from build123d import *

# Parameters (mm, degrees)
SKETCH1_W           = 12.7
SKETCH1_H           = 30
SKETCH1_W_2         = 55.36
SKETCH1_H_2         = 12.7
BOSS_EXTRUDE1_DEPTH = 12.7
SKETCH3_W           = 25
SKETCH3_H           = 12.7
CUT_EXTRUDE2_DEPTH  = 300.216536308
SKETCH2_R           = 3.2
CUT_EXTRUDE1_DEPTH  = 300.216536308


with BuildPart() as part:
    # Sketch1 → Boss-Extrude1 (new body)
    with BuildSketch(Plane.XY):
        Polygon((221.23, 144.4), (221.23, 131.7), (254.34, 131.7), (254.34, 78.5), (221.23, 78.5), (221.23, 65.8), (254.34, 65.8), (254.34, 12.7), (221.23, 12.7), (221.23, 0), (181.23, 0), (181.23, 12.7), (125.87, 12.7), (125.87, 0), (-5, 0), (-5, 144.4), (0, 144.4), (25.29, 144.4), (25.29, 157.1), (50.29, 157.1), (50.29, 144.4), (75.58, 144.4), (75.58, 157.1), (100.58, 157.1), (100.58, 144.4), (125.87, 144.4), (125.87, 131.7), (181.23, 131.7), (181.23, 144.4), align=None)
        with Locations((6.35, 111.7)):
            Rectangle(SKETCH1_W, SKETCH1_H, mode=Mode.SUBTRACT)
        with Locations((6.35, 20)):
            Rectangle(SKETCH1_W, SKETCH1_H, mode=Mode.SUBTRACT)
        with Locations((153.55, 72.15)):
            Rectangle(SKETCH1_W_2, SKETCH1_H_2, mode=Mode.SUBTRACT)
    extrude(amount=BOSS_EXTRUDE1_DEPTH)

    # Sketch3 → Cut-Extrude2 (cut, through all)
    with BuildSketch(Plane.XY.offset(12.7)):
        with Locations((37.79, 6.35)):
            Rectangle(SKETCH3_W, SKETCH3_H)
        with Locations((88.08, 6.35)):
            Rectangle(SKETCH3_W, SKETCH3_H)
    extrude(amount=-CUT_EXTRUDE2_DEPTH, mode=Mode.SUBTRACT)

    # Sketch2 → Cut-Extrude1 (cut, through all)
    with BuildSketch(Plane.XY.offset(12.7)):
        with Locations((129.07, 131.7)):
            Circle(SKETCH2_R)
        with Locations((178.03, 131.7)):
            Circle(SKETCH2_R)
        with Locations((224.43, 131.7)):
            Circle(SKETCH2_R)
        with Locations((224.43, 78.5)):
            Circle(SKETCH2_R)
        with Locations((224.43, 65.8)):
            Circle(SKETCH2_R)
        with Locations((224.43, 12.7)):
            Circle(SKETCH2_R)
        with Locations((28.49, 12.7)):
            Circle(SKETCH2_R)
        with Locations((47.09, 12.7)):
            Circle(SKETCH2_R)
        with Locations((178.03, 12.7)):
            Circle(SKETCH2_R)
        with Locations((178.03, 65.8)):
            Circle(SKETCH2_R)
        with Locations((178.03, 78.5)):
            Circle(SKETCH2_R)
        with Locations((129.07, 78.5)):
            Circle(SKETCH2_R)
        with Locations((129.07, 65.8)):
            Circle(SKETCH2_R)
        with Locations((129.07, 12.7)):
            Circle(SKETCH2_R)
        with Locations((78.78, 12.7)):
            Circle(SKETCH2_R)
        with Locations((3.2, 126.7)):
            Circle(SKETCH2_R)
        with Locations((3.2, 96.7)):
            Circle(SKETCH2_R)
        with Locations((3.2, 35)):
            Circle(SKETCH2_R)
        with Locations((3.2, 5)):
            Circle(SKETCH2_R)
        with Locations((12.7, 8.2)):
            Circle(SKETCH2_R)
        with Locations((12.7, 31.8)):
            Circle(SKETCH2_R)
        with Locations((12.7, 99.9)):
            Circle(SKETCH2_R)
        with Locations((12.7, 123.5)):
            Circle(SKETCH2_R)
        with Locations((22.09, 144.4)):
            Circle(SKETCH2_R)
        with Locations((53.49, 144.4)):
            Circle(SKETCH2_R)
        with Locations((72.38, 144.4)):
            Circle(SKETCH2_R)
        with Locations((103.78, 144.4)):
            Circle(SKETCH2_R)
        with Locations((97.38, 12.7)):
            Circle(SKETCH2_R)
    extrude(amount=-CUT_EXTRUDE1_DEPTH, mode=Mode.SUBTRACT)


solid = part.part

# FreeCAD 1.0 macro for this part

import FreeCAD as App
import Part
import Sketcher


def add_polygon(sketch, points):
    """Adds a closed chain of lines whose ends are joined by coincident constraints."""
    first, n = sketch.GeometryCount, len(points)
    for a, b in zip(points, points[1:] + points[:1]):
        sketch.addGeometry(Part.LineSegment(App.Vector(*a, 0), App.Vector(*b, 0)), False)
    for i in range(n):
        sketch.addConstraint(Sketcher.Constraint("Coincident", first + i, 2, first + (i + 1) % n, 1))

doc = App.newDocument("Part")
body = doc.addObject("PartDesign::Body", "Body")

sketch1 = doc.addObject("Sketcher::SketchObject", "Sketch")
body.addObject(sketch1)
sketch1.AttachmentSupport = (doc.XY_Plane, [""])
sketch1.MapMode = "FlatFace"
add_polygon(sketch1, [(221, 132), (221, 144), (181, 144), (181, 132), (126, 132), (126, 144), (101, 144), (101, 157), (76, 157), (76, 144), (50, 144), (50, 157), (25, 157), (25, 144), (-5, 144), (-5, 0), (126, 0), (126, 13), (181, 13), (181, 0), (221, 0), (221, 13), (254, 13), (254, 66), (221, 66), (221, 78), (254, 78), (254, 132)])
add_polygon(sketch1, [(0, 5), (0, 35), (13, 35), (13, 5)])
add_polygon(sketch1, [(126, 66), (126, 78), (181, 78), (181, 66)])
add_polygon(sketch1, [(0, 97), (0, 127), (13, 127), (13, 97)])
sketch1.addConstraint([
    Sketcher.Constraint("Vertical", 0),
    Sketcher.Constraint("Horizontal", 1),
    Sketcher.Constraint("Vertical", 2),
    Sketcher.Constraint("Horizontal", 3),
    Sketcher.Constraint("Vertical", 4),
    Sketcher.Constraint("Horizontal", 5),
    Sketcher.Constraint("Vertical", 6),
    Sketcher.Constraint("Horizontal", 7),
    Sketcher.Constraint("Vertical", 8),
    Sketcher.Constraint("Horizontal", 9),
    Sketcher.Constraint("Vertical", 10),
    Sketcher.Constraint("Horizontal", 11),
    Sketcher.Constraint("Vertical", 12),
    Sketcher.Constraint("Horizontal", 13),
    Sketcher.Constraint("Vertical", 14),
    Sketcher.Constraint("Horizontal", 15),
    Sketcher.Constraint("Vertical", 16),
    Sketcher.Constraint("Horizontal", 17),
    Sketcher.Constraint("Vertical", 18),
    Sketcher.Constraint("Horizontal", 19),
    Sketcher.Constraint("Vertical", 20),
    Sketcher.Constraint("Horizontal", 21),
    Sketcher.Constraint("Vertical", 22),
    Sketcher.Constraint("Horizontal", 23),
    Sketcher.Constraint("Vertical", 24),
    Sketcher.Constraint("Horizontal", 25),
    Sketcher.Constraint("Vertical", 26),
    Sketcher.Constraint("Horizontal", 27),
    Sketcher.Constraint("Vertical", 28),
    Sketcher.Constraint("Horizontal", 29),
    Sketcher.Constraint("Vertical", 30),
    Sketcher.Constraint("Horizontal", 31),
    Sketcher.Constraint("Vertical", 32),
    Sketcher.Constraint("Horizontal", 33),
    Sketcher.Constraint("Vertical", 34),
    Sketcher.Constraint("Horizontal", 35),
    Sketcher.Constraint("Vertical", 36),
    Sketcher.Constraint("Horizontal", 37),
    Sketcher.Constraint("Vertical", 38),
    Sketcher.Constraint("Horizontal", 39),
    Sketcher.Constraint("PointOnObject", 14, 2, -1),
    Sketcher.Constraint("PointOnObject", 18, 2, -1),
    Sketcher.Constraint("PointOnObject", 28, 2, -2),
    Sketcher.Constraint("PointOnObject", 36, 2, -2),
    Sketcher.Constraint("Horizontal", 1, 2, 4, 2),
    Sketcher.Constraint("Horizontal", 5, 2, 8, 2),
    Sketcher.Constraint("Horizontal", 7, 2, 10, 2),
    Sketcher.Constraint("Horizontal", 9, 2, 12, 2),
    Sketcher.Constraint("Horizontal", 17, 2, 20, 2),
    Sketcher.Constraint("Horizontal", 3, 2, 26, 2),
    Sketcher.Constraint("Horizontal", 25, 2, 32, 2),
    Sketcher.Constraint("Horizontal", 23, 2, 34, 2),
    Sketcher.Constraint("Vertical", 4, 2, 15, 2),
    Sketcher.Constraint("Vertical", 2, 2, 17, 2),
    Sketcher.Constraint("Vertical", 0, 2, 19, 2),
    Sketcher.Constraint("Vertical", 20, 2, 23, 2),
    Sketcher.Constraint("Vertical", 22, 2, 25, 2),
    Sketcher.Constraint("Vertical", 16, 2, 32, 2),
    Sketcher.Constraint("Vertical", 18, 2, 33, 2),
    Sketcher.Constraint("Vertical", 30, 2, 37, 2),
    Sketcher.Constraint("Equal", 5, 9),
    Sketcher.Constraint("Equal", 7, 11),
    Sketcher.Constraint("Equal", 39, 0),
    Sketcher.Constraint("Equal", 4, 6),
    Sketcher.Constraint("Equal", 12, 16),
    Sketcher.Constraint("Equal", 20, 24),
    Sketcher.Constraint("Equal", 30, 36),
    Sketcher.Constraint("DistanceX", 1, 2, 1, 1, 40.0),
    Sketcher.Constraint("DistanceX", 7, 2, 7, 1, 25.0),
    Sketcher.Constraint("DistanceY", 28, 1, 28, 2, 30.0),
    Sketcher.Constraint("DistanceX", 29, 1, 29, 2, 12.7),
    Sketcher.Constraint("DistanceY", 14, 2, 14, 1, 144.4),
    Sketcher.Constraint("DistanceY", 22, 1, 22, 2, 53.1),
    Sketcher.Constraint("DistanceX", 13, 2, -1, 1, 5.0),
    Sketcher.Constraint("DistanceY", -1, 1, 28, 2, 35.0),
    Sketcher.Constraint("DistanceX", 3, 2, 3, 1, 55.36),
    Sketcher.Constraint("DistanceX", 5, 2, 5, 1, 25.29),
    Sketcher.Constraint("DistanceX", 13, 2, 13, 1, 30.29),
    Sketcher.Constraint("DistanceX", 21, 1, 21, 2, 33.11),
    Sketcher.Constraint("DistanceY", -1, 1, 36, 2, 126.7),
])
pad1 = doc.addObject("PartDesign::Pad", "Pad")
body.addObject(pad1)
pad1.Profile = sketch1
pad1.Length = 12.7

sketch2 = doc.addObject("Sketcher::SketchObject", "Sketch001")
body.addObject(sketch2)
sketch2.AttachmentSupport = (doc.XY_Plane, [""])
sketch2.MapMode = "FlatFace"
sketch2.AttachmentOffset = App.Placement(App.Vector(0, 0, 12.7), App.Rotation())
add_polygon(sketch2, [(25, 13), (25, 0), (50, 0), (50, 13)])
add_polygon(sketch2, [(76, 13), (76, 0), (101, 0), (101, 13)])
sketch2.addConstraint([
    Sketcher.Constraint("Vertical", 0),
    Sketcher.Constraint("Horizontal", 1),
    Sketcher.Constraint("Vertical", 2),
    Sketcher.Constraint("Horizontal", 3),
    Sketcher.Constraint("Vertical", 4),
    Sketcher.Constraint("Horizontal", 5),
    Sketcher.Constraint("Vertical", 6),
    Sketcher.Constraint("Horizontal", 7),
    Sketcher.Constraint("PointOnObject", 0, 2, -1),
    Sketcher.Constraint("PointOnObject", 4, 2, -1),
    Sketcher.Constraint("Horizontal", 3, 2, 6, 2),
    Sketcher.Constraint("Equal", 3, 5),
    Sketcher.Constraint("DistanceX", 1, 1, 1, 2, 25.0),
    Sketcher.Constraint("DistanceY", 0, 2, 0, 1, 12.7),
    Sketcher.Constraint("DistanceX", -1, 1, 0, 2, 25.29),
    Sketcher.Constraint("DistanceX", -1, 1, 4, 2, 75.58),
])
pocket1 = doc.addObject("PartDesign::Pocket", "Pocket")
body.addObject(pocket1)
pocket1.Profile = sketch2
pocket1.Type = "ThroughAll"

sketch3 = doc.addObject("Sketcher::SketchObject", "Sketch002")
body.addObject(sketch3)
sketch3.AttachmentSupport = (doc.XY_Plane, [""])
sketch3.MapMode = "FlatFace"
sketch3.AttachmentOffset = App.Placement(App.Vector(0, 0, 12.7), App.Rotation())
sketch3.addGeometry([
    Part.Circle(App.Vector(129.1, 131.7, 0), App.Vector(0, 0, 1), 3.2),
    Part.Circle(App.Vector(178, 131.7, 0), App.Vector(0, 0, 1), 3.2),
    Part.Circle(App.Vector(224.4, 131.7, 0), App.Vector(0, 0, 1), 3.2),
    Part.Circle(App.Vector(224.4, 78.5, 0), App.Vector(0, 0, 1), 3.2),
    Part.Circle(App.Vector(224.4, 65.8, 0), App.Vector(0, 0, 1), 3.2),
    Part.Circle(App.Vector(224.4, 12.7, 0), App.Vector(0, 0, 1), 3.2),
    Part.Circle(App.Vector(28.5, 12.7, 0), App.Vector(0, 0, 1), 3.2),
    Part.Circle(App.Vector(47.1, 12.7, 0), App.Vector(0, 0, 1), 3.2),
    Part.Circle(App.Vector(178, 12.7, 0), App.Vector(0, 0, 1), 3.2),
    Part.Circle(App.Vector(178, 65.8, 0), App.Vector(0, 0, 1), 3.2),
    Part.Circle(App.Vector(178, 78.5, 0), App.Vector(0, 0, 1), 3.2),
    Part.Circle(App.Vector(129.1, 78.5, 0), App.Vector(0, 0, 1), 3.2),
    Part.Circle(App.Vector(129.1, 65.8, 0), App.Vector(0, 0, 1), 3.2),
    Part.Circle(App.Vector(129.1, 12.7, 0), App.Vector(0, 0, 1), 3.2),
    Part.Circle(App.Vector(78.8, 12.7, 0), App.Vector(0, 0, 1), 3.2),
    Part.Circle(App.Vector(3.2, 126.7, 0), App.Vector(0, 0, 1), 3.2),
    Part.Circle(App.Vector(3.2, 96.7, 0), App.Vector(0, 0, 1), 3.2),
    Part.Circle(App.Vector(3.2, 35, 0), App.Vector(0, 0, 1), 3.2),
    Part.Circle(App.Vector(3.2, 5, 0), App.Vector(0, 0, 1), 3.2),
    Part.Circle(App.Vector(12.7, 8.2, 0), App.Vector(0, 0, 1), 3.2),
    Part.Circle(App.Vector(12.7, 31.8, 0), App.Vector(0, 0, 1), 3.2),
    Part.Circle(App.Vector(12.7, 99.9, 0), App.Vector(0, 0, 1), 3.2),
    Part.Circle(App.Vector(12.7, 123.5, 0), App.Vector(0, 0, 1), 3.2),
    Part.Circle(App.Vector(22.1, 144.4, 0), App.Vector(0, 0, 1), 3.2),
    Part.Circle(App.Vector(53.5, 144.4, 0), App.Vector(0, 0, 1), 3.2),
    Part.Circle(App.Vector(72.4, 144.4, 0), App.Vector(0, 0, 1), 3.2),
    Part.Circle(App.Vector(103.8, 144.4, 0), App.Vector(0, 0, 1), 3.2),
    Part.Circle(App.Vector(97.4, 12.7, 0), App.Vector(0, 0, 1), 3.2),
], False)
sketch3.addConstraint([
    Sketcher.Constraint("Equal", 0, 1),
    Sketcher.Constraint("Equal", 1, 2),
    Sketcher.Constraint("Equal", 2, 3),
    Sketcher.Constraint("Equal", 3, 4),
    Sketcher.Constraint("Equal", 4, 5),
    Sketcher.Constraint("Equal", 5, 6),
    Sketcher.Constraint("Equal", 6, 7),
    Sketcher.Constraint("Equal", 7, 8),
    Sketcher.Constraint("Equal", 8, 9),
    Sketcher.Constraint("Equal", 9, 10),
    Sketcher.Constraint("Equal", 10, 11),
    Sketcher.Constraint("Equal", 11, 12),
    Sketcher.Constraint("Equal", 12, 13),
    Sketcher.Constraint("Equal", 13, 14),
    Sketcher.Constraint("Equal", 14, 15),
    Sketcher.Constraint("Equal", 15, 16),
    Sketcher.Constraint("Equal", 16, 17),
    Sketcher.Constraint("Equal", 17, 18),
    Sketcher.Constraint("Equal", 18, 19),
    Sketcher.Constraint("Equal", 19, 20),
    Sketcher.Constraint("Equal", 20, 21),
    Sketcher.Constraint("Equal", 21, 22),
    Sketcher.Constraint("Equal", 22, 23),
    Sketcher.Constraint("Equal", 23, 24),
    Sketcher.Constraint("Equal", 24, 25),
    Sketcher.Constraint("Equal", 25, 26),
    Sketcher.Constraint("Equal", 26, 27),
    Sketcher.Constraint("Horizontal", 0, 3, 1, 3),
    Sketcher.Constraint("Horizontal", 1, 3, 2, 3),
    Sketcher.Constraint("Horizontal", 5, 3, 6, 3),
    Sketcher.Constraint("Horizontal", 6, 3, 7, 3),
    Sketcher.Constraint("Horizontal", 7, 3, 8, 3),
    Sketcher.Constraint("Horizontal", 4, 3, 9, 3),
    Sketcher.Constraint("Horizontal", 3, 3, 10, 3),
    Sketcher.Constraint("Horizontal", 10, 3, 11, 3),
    Sketcher.Constraint("Horizontal", 9, 3, 12, 3),
    Sketcher.Constraint("Horizontal", 8, 3, 13, 3),
    Sketcher.Constraint("Horizontal", 13, 3, 14, 3),
    Sketcher.Constraint("Horizontal", 23, 3, 24, 3),
    Sketcher.Constraint("Horizontal", 24, 3, 25, 3),
    Sketcher.Constraint("Horizontal", 25, 3, 26, 3),
    Sketcher.Constraint("Horizontal", 14, 3, 27, 3),
    Sketcher.Constraint("Vertical", 2, 3, 3, 3),
    Sketcher.Constraint("Vertical", 3, 3, 4, 3),
    Sketcher.Constraint("Vertical", 4, 3, 5, 3),
    Sketcher.Constraint("Vertical", 1, 3, 8, 3),
    Sketcher.Constraint("Vertical", 8, 3, 9, 3),
    Sketcher.Constraint("Vertical", 9, 3, 10, 3),
    Sketcher.Constraint("Vertical", 0, 3, 11, 3),
    Sketcher.Constraint("Vertical", 11, 3, 12, 3),
    Sketcher.Constraint("Vertical", 12, 3, 13, 3),
    Sketcher.Constraint("Vertical", 15, 3, 16, 3),
    Sketcher.Constraint("Vertical", 16, 3, 17, 3),
    Sketcher.Constraint("Vertical", 17, 3, 18, 3),
    Sketcher.Constraint("Vertical", 19, 3, 20, 3),
    Sketcher.Constraint("Vertical", 20, 3, 21, 3),
    Sketcher.Constraint("Vertical", 21, 3, 22, 3),
    Sketcher.Constraint("Diameter", 0, 6.4),
    Sketcher.Constraint("DistanceY", -1, 1, 17, 3, 35.0),
    Sketcher.Constraint("DistanceY", -1, 1, 18, 3, 5.0),
    Sketcher.Constraint("DistanceY", 5, 3, 2, 3, 119.0),
    Sketcher.Constraint("DistanceY", 6, 3, 15, 3, 114.0),
    Sketcher.Constraint("DistanceY", 16, 3, 15, 3, 30.0),
    Sketcher.Constraint("DistanceY", -1, 1, 0, 3, 131.7),
    Sketcher.Constraint("DistanceY", -1, 1, 3, 3, 78.5),
    Sketcher.Constraint("DistanceY", -1, 1, 4, 3, 65.8),
    Sketcher.Constraint("DistanceX", -1, 1, 15, 3, 3.2),
    Sketcher.Constraint("DistanceX", -1, 1, 19, 3, 12.7),
    Sketcher.Constraint("DistanceY", -1, 1, 19, 3, 8.2),
    Sketcher.Constraint("DistanceY", -1, 1, 20, 3, 31.8),
    Sketcher.Constraint("DistanceY", -1, 1, 21, 3, 99.9),
    Sketcher.Constraint("DistanceY", -1, 1, 22, 3, 123.5),
    Sketcher.Constraint("DistanceY", -1, 1, 23, 3, 144.4),
    Sketcher.Constraint("DistanceX", 1, 3, 2, 3, 46.4),
    Sketcher.Constraint("DistanceX", 6, 3, 7, 3, 18.6),
    Sketcher.Constraint("DistanceX", 23, 3, 24, 3, 31.4),
    Sketcher.Constraint("DistanceX", 25, 3, 26, 3, 31.4),
    Sketcher.Constraint("DistanceX", 14, 3, 27, 3, 18.6),
    Sketcher.Constraint("DistanceX", -1, 1, 0, 3, 129.07),
    Sketcher.Constraint("DistanceX", -1, 1, 1, 3, 178.03),
    Sketcher.Constraint("DistanceX", -1, 1, 6, 3, 28.49),
    Sketcher.Constraint("DistanceX", -1, 1, 14, 3, 78.78),
    Sketcher.Constraint("DistanceX", -1, 1, 23, 3, 22.09),
    Sketcher.Constraint("DistanceX", -1, 1, 25, 3, 72.38),
])
pocket2 = doc.addObject("PartDesign::Pocket", "Pocket001")
body.addObject(pocket2)
pocket2.Profile = sketch3
pocket2.Type = "ThroughAll"

doc.recompute()
